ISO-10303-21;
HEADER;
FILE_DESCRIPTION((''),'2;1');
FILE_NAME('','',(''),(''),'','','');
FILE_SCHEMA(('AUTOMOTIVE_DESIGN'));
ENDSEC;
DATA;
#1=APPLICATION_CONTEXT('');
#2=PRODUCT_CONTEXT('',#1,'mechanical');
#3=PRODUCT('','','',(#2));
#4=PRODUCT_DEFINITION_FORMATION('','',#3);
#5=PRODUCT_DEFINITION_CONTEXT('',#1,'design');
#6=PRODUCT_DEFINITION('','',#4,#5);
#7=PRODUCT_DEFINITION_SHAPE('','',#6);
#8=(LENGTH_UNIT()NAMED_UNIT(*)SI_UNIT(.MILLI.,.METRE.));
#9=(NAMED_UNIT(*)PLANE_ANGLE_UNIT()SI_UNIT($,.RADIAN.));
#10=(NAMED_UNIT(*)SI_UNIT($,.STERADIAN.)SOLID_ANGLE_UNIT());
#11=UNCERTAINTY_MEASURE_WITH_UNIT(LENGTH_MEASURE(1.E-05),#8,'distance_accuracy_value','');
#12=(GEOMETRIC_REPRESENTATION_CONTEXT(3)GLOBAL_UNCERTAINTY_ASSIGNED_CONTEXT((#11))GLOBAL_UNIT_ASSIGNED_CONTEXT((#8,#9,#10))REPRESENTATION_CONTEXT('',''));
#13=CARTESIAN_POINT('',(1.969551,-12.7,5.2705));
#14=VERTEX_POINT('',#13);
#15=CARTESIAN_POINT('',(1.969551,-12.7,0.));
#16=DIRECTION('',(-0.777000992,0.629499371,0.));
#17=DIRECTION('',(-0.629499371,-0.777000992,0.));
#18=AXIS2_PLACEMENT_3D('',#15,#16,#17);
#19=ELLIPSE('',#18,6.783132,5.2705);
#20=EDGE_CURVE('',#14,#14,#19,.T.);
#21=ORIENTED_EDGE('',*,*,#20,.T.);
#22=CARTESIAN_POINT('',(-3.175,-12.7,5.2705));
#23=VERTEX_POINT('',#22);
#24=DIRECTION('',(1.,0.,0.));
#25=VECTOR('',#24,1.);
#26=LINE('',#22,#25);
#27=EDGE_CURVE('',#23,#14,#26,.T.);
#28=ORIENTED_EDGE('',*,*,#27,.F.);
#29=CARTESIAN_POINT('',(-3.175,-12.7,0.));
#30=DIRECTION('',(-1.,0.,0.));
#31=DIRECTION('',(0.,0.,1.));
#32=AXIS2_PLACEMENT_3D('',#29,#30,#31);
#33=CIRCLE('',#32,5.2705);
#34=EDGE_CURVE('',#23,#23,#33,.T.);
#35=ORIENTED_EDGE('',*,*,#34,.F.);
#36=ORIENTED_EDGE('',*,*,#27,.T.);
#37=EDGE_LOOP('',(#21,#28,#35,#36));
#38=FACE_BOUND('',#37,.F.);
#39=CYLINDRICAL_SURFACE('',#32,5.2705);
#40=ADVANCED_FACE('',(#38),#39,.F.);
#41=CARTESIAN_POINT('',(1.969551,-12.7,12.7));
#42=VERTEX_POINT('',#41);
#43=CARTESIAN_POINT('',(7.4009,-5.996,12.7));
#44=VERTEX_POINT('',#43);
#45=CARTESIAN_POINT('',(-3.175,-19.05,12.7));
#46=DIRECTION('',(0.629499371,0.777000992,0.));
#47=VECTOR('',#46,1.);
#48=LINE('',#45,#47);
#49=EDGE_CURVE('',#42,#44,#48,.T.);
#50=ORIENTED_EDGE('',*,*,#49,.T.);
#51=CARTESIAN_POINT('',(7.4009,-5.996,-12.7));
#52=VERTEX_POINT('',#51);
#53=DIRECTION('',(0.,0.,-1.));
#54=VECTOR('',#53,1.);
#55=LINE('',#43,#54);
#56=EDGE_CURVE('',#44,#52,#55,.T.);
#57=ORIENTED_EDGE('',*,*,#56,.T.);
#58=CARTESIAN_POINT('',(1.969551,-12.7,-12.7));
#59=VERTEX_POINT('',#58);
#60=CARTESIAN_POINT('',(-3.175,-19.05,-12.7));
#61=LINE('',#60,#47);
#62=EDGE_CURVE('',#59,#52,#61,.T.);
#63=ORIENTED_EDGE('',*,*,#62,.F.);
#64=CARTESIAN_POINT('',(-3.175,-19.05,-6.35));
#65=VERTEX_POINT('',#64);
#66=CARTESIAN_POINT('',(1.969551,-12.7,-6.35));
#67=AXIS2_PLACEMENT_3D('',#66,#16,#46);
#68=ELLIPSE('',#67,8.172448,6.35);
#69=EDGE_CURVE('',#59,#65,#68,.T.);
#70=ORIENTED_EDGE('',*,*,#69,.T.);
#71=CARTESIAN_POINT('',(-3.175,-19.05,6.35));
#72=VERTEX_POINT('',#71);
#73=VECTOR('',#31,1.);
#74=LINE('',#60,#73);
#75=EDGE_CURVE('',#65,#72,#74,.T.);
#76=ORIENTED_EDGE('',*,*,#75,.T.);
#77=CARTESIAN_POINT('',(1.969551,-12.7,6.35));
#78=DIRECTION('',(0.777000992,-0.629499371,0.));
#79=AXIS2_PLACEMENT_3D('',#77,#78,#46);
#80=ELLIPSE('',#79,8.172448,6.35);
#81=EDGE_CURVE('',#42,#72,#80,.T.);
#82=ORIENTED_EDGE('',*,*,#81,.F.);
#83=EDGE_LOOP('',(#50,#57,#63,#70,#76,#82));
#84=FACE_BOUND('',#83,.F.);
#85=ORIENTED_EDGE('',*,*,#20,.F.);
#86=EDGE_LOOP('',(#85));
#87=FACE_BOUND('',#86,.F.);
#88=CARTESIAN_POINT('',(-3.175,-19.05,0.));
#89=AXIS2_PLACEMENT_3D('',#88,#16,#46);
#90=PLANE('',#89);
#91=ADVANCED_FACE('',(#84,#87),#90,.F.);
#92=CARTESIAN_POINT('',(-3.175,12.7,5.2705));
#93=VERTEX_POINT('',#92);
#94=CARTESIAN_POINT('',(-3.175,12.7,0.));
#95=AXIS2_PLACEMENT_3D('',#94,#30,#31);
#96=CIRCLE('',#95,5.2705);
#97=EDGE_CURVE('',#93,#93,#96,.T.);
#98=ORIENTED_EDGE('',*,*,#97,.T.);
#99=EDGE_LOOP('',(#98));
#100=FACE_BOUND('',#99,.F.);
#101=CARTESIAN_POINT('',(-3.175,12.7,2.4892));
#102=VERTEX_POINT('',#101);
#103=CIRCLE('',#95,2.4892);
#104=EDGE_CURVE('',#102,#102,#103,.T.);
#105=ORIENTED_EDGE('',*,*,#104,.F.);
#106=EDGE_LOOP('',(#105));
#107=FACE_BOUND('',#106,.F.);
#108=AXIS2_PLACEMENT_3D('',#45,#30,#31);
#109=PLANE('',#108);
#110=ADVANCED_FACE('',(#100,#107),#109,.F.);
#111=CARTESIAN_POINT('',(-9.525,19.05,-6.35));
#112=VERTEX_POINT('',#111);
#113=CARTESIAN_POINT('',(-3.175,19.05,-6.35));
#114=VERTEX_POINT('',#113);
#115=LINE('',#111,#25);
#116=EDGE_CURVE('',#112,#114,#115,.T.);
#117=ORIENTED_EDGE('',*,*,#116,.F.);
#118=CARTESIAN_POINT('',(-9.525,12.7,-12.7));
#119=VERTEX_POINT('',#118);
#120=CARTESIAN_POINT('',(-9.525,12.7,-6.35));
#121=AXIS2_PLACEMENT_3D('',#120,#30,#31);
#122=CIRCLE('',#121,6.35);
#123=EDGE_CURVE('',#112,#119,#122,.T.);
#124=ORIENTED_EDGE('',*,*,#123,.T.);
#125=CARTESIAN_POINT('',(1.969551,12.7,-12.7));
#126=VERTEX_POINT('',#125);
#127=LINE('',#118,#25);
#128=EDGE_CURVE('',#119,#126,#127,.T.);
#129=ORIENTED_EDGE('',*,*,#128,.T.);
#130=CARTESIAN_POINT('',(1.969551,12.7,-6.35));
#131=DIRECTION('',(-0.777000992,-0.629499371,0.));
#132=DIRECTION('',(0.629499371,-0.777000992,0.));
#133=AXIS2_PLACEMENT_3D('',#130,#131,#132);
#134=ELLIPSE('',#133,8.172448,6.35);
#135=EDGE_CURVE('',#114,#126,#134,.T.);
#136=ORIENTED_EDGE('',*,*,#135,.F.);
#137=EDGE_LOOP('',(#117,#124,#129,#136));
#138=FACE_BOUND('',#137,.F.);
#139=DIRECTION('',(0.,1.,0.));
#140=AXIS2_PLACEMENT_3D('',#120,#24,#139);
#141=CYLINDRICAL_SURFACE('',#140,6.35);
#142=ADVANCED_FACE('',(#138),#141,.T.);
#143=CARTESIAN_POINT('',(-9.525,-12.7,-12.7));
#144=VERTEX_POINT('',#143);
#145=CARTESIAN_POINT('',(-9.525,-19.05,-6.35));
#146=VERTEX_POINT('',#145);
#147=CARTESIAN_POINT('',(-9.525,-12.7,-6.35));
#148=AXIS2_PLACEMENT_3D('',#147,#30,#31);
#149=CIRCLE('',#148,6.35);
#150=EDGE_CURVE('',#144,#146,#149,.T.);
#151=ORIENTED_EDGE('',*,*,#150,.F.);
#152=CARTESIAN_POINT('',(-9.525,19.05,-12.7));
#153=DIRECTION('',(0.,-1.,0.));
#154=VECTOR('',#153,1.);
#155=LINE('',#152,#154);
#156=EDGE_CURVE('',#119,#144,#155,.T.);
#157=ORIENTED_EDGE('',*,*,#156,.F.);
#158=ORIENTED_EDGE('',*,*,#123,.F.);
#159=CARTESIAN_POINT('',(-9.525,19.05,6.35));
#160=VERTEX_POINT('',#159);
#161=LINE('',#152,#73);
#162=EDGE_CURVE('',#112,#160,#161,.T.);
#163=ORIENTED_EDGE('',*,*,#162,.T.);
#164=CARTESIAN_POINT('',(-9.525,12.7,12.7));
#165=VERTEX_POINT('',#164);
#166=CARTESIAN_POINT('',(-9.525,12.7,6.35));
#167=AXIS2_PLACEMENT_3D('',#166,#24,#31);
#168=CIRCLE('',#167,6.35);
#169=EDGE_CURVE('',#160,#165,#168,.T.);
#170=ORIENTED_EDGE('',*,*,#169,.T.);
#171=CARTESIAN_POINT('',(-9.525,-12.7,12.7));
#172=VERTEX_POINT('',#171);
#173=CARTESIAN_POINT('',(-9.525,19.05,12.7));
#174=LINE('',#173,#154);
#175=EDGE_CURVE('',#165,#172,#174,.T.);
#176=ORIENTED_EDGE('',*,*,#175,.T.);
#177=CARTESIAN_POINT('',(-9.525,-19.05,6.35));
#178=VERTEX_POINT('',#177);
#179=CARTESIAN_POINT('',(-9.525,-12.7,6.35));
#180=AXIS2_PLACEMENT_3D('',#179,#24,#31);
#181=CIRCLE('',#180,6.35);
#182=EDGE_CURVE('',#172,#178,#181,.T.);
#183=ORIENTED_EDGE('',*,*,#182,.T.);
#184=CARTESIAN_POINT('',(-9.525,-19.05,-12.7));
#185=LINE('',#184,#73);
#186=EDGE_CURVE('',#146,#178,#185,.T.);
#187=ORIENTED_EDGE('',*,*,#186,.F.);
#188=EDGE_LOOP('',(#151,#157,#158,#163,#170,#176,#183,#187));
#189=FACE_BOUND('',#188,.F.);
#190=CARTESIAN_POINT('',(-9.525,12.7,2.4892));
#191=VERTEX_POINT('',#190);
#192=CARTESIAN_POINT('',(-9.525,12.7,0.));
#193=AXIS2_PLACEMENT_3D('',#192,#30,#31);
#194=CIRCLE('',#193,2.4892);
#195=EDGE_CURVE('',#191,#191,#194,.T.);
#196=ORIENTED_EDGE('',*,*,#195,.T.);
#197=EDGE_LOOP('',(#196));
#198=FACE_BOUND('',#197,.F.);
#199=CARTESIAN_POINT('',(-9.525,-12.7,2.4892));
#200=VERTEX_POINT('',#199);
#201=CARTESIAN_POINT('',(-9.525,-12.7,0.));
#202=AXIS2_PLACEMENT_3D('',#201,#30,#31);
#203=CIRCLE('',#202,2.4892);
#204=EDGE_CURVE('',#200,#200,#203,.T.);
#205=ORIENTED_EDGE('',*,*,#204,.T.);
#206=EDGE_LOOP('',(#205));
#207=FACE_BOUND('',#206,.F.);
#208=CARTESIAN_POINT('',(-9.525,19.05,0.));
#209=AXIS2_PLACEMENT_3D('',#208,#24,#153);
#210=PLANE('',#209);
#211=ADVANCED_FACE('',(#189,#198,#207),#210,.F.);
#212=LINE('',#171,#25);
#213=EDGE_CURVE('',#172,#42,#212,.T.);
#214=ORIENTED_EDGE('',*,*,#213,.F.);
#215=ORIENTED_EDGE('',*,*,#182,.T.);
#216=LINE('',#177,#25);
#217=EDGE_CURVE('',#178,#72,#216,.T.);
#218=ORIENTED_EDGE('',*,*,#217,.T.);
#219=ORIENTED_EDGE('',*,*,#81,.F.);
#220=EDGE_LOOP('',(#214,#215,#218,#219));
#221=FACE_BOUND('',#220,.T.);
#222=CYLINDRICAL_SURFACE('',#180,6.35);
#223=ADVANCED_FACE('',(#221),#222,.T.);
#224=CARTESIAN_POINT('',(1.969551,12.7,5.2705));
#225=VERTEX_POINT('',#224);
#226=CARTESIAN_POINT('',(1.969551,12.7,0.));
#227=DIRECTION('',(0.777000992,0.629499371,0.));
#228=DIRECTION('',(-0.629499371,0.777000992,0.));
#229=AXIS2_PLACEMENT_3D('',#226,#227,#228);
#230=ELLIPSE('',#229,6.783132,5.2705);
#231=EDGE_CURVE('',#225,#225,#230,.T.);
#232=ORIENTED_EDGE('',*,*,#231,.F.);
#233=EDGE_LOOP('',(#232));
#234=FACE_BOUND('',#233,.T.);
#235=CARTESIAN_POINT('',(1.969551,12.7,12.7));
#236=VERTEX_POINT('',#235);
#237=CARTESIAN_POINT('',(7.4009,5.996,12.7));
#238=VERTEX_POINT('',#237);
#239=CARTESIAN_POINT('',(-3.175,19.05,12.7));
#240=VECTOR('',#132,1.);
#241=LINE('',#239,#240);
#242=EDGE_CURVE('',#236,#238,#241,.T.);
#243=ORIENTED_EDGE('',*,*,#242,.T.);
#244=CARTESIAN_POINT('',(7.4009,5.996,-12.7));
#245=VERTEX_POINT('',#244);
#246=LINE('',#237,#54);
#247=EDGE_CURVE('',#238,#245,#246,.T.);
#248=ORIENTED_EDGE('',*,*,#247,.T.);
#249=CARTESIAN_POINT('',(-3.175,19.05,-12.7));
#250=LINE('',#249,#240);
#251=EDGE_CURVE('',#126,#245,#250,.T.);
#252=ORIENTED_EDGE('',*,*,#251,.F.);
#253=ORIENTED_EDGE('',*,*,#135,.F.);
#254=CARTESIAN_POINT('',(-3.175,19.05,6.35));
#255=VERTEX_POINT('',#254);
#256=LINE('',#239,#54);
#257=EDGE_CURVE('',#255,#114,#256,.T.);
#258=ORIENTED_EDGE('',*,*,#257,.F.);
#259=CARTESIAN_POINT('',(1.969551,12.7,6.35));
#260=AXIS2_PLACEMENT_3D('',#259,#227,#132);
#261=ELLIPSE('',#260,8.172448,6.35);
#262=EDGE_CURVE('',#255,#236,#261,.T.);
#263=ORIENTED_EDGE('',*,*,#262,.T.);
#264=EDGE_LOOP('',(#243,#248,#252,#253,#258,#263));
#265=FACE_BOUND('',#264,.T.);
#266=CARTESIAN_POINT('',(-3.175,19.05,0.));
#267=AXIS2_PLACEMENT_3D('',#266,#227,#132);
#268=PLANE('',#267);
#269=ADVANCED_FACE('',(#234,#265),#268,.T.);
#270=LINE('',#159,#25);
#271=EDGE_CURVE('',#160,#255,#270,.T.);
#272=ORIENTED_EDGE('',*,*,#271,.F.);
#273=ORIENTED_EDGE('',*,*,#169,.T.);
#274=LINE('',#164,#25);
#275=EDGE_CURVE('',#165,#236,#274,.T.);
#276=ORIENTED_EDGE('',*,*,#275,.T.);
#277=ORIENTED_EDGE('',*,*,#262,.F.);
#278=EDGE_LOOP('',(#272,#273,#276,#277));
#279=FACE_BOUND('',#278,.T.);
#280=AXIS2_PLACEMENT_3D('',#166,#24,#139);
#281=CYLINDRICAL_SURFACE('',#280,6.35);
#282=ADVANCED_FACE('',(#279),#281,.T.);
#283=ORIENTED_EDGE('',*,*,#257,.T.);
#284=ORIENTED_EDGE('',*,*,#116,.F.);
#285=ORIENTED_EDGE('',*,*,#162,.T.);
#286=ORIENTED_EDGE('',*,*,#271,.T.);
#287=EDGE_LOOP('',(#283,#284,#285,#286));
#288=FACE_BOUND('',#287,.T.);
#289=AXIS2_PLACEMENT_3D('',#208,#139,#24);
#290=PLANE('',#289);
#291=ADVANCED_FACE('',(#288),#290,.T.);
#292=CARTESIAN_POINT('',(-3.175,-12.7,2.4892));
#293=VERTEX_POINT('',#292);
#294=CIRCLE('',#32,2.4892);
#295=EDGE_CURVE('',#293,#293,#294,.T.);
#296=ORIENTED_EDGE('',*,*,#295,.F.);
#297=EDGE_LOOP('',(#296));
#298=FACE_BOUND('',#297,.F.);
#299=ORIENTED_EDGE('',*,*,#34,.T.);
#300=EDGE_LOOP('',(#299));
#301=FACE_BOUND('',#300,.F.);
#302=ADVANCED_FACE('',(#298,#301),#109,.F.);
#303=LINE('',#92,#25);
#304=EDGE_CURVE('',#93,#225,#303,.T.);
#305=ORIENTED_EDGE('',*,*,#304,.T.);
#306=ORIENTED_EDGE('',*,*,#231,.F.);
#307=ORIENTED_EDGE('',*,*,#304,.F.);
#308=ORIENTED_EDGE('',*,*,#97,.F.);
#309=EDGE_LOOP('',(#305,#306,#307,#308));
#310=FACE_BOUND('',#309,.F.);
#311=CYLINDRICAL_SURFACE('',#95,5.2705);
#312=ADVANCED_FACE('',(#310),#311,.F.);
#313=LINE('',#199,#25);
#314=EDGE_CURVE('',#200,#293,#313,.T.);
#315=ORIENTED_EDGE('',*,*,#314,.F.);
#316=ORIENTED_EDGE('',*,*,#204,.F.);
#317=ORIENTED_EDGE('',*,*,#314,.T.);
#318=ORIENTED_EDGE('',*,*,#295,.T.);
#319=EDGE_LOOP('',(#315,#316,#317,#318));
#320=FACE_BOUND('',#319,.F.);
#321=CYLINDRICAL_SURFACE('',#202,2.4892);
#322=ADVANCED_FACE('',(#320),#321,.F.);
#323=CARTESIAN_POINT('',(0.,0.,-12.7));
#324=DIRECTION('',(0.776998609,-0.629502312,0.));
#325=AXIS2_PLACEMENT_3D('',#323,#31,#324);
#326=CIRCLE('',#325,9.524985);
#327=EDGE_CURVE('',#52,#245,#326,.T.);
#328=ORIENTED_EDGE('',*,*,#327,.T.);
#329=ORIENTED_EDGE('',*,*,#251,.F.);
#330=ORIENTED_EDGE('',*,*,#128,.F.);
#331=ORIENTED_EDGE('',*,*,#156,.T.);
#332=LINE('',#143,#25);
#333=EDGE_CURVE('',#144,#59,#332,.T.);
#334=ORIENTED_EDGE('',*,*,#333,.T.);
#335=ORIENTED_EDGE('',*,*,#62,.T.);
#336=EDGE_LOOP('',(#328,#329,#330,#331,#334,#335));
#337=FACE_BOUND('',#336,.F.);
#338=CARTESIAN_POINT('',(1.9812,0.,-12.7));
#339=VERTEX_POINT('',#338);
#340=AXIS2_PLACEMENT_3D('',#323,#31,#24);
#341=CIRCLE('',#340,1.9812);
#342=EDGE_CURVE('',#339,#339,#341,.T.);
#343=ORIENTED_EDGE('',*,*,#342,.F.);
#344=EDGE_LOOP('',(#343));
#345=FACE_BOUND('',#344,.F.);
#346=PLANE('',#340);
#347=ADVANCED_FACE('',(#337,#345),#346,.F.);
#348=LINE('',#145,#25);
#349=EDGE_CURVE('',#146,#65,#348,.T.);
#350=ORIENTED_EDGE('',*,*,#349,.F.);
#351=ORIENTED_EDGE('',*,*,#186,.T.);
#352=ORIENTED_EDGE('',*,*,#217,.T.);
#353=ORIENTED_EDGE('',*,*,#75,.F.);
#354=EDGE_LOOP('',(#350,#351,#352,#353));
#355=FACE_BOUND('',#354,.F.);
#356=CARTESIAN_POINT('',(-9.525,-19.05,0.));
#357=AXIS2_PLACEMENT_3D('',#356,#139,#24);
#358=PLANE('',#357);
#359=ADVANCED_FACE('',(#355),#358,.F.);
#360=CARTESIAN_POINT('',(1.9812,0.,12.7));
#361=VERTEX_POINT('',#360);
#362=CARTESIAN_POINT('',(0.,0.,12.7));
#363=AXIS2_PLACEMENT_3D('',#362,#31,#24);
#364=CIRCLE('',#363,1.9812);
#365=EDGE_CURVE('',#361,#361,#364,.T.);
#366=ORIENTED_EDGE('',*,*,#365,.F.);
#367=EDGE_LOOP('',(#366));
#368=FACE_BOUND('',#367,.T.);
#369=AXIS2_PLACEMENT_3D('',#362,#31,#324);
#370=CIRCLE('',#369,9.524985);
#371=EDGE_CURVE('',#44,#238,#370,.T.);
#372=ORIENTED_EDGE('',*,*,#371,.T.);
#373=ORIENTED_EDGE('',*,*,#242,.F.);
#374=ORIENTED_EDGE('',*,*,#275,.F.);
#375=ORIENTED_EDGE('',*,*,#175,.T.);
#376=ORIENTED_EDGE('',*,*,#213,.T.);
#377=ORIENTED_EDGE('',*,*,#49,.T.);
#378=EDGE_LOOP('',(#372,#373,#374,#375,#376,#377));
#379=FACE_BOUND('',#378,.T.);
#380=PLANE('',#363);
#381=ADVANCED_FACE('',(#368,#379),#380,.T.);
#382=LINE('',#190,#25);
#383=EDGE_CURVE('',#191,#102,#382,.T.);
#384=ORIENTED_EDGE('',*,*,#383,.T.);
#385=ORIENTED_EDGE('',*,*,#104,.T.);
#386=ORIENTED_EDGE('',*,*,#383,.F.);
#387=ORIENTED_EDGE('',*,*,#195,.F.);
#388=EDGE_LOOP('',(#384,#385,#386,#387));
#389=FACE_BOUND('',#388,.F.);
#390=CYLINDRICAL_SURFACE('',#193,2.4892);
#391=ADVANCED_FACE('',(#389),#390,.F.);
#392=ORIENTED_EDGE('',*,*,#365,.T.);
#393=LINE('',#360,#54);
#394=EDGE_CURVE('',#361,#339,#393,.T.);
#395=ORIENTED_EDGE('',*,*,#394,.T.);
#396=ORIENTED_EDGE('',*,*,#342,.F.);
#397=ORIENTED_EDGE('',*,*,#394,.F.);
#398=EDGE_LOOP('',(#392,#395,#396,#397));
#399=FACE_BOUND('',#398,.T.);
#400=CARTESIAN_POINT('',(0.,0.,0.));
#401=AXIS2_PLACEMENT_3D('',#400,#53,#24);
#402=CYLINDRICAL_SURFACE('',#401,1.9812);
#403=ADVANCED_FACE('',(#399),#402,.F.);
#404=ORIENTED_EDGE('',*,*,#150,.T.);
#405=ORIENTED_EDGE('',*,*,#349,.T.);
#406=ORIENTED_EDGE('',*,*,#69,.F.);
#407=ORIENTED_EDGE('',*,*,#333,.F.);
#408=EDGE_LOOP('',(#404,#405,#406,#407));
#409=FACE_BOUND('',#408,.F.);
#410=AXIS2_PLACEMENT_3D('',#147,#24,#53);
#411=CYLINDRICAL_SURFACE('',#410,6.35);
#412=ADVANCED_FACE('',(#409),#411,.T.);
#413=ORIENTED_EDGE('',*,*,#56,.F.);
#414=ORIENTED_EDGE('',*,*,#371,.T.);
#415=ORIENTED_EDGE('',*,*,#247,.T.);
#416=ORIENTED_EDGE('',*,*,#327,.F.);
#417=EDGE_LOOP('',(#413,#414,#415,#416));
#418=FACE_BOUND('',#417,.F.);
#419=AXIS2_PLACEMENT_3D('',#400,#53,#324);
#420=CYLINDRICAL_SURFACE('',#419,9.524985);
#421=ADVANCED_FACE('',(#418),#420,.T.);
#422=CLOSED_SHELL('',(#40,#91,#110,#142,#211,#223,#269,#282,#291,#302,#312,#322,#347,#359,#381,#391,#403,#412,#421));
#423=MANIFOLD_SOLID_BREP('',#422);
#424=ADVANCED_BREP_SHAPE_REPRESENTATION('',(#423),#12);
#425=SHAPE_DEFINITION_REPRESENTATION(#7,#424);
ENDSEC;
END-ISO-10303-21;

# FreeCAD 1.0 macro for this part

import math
import FreeCAD as App
import Part
import Sketcher
from FreeCAD import Vector
Q = App.Units.Quantity


def edges_at(feature, points):
    """Names of the edges that pass closest to the given points."""
    edges = feature.Shape.Edges
    near = lambda p: min(range(len(edges)), key=lambda i: edges[i].distToShape(Part.Vertex(*p))[0])
    return sorted({f"Edge{near(p) + 1}" for p in points})

doc = App.newDocument("Part")
params = doc.addObject("Spreadsheet::Sheet", "Params")
for row, (alias, value) in enumerate([
    ("sketch1_diameter", "0.156 in"),
    ("sketch1_height", "1.5 in"),
    ("sketch1_radius", "0.375 in"),
    ("sketch1_width", "0.25 in"),
    ("pad1_length", "1 in"),
    ("sketch2_diameter", "0.196 in"),
    ("sketch3_diameter", "0.415 in"),
    ("sketch3_diameter2", "0.196 in"),
    ("fillet_radius", "0.25 in"),
], start=1):
    params.set(f"A{row}", alias)
    params.set(f"B{row}", "=" + value)
    params.setAlias(f"B{row}", alias)

body = doc.addObject("PartDesign::Body", "Body")

sketch1 = body.newObject("Sketcher::SketchObject", "Sketch")
sketch1.AttachmentSupport = (doc.getObject("XY_Plane"), [""])
sketch1.MapMode = "FlatFace"
sketch1.addGeometry(Part.LineSegment(Vector(-3.2, 19.1, 0), Vector(-9.5, 19.1, 0)), False)
sketch1.addGeometry(Part.LineSegment(Vector(-9.5, 19.1, 0), Vector(-9.5, -19.1, 0)), False)
sketch1.addGeometry(Part.LineSegment(Vector(-9.5, -19.1, 0), Vector(-3.2, -19.1, 0)), False)
sketch1.addGeometry(Part.LineSegment(Vector(-3.2, -19.1, 0), Vector(7.4, -6, 0)), False)
sketch1.addGeometry(Part.ArcOfCircle(Part.Circle(Vector(0, 0, 0), Vector(0, 0, 1), 9.5), math.radians(-39), math.radians(39)), False)
sketch1.addGeometry(Part.LineSegment(Vector(7.4, 6, 0), Vector(-3.2, 19.1, 0)), False)
sketch1.addGeometry(Part.Circle(Vector(0, 0, 0), Vector(0, 0, 1), 2), False)
sketch1.addConstraint(Sketcher.Constraint("Coincident", 0, 2, 1, 1))
sketch1.addConstraint(Sketcher.Constraint("Coincident", 1, 2, 2, 1))
sketch1.addConstraint(Sketcher.Constraint("Coincident", 2, 2, 3, 1))
sketch1.addConstraint(Sketcher.Constraint("Tangent", 3, 2, 4, 1))
sketch1.addConstraint(Sketcher.Constraint("Tangent", 4, 2, 5, 1))
sketch1.addConstraint(Sketcher.Constraint("Coincident", 5, 2, 0, 1))
sketch1.addConstraint(Sketcher.Constraint("Horizontal", 0))
sketch1.addConstraint(Sketcher.Constraint("Vertical", 1))
sketch1.addConstraint(Sketcher.Constraint("Horizontal", 2))
sketch1.addConstraint(Sketcher.Constraint("Coincident", 4, 3, -1, 1))
sketch1.addConstraint(Sketcher.Constraint("Coincident", 6, 3, -1, 1))
sketch1.addConstraint(Sketcher.Constraint("Symmetric", 2, 2, 5, 2, -1))
sketch1.addConstraint(Sketcher.Constraint("Diameter", 6, Q("0.156 in")))
sketch1.addConstraint(Sketcher.Constraint("DistanceY", 1, 2, 1, 1, Q("1.5 in")))
sketch1.addConstraint(Sketcher.Constraint("Radius", 4, Q("0.375 in")))
sketch1.addConstraint(Sketcher.Constraint("DistanceX", 0, 2, 0, 1, Q("0.25 in")))
sketch1.addConstraint(Sketcher.Constraint("DistanceX", 0, 2, -1, 1, Q("0.375 in")))
sketch1.setExpression("Constraints[12]", "Params.sketch1_diameter")
sketch1.setExpression("Constraints[13]", "Params.sketch1_height")
sketch1.setExpression("Constraints[14]", "Params.sketch1_radius")
sketch1.setExpression("Constraints[15]", "Params.sketch1_width")
pad1 = body.newObject("PartDesign::Pad", "Pad")
pad1.Profile = sketch1
pad1.setExpression("Length", "Params.pad1_length")
pad1.Midplane = True

sketch2 = body.newObject("Sketcher::SketchObject", "Sketch001")
sketch2.AttachmentSupport = (doc.getObject("YZ_Plane"), [""])
sketch2.MapMode = "FlatFace"
sketch2.AttachmentOffset = App.Placement(Vector(0, 0, -0.375 * 25.4), App.Rotation())
sketch2.addGeometry(Part.Circle(Vector(12.7, 0, 0), Vector(0, 0, 1), 2.5), False)
sketch2.addGeometry(Part.Circle(Vector(-12.7, 0, 0), Vector(0, 0, 1), 2.5), False)
sketch2.addConstraint(Sketcher.Constraint("Equal", 0, 1))
sketch2.addConstraint(Sketcher.Constraint("Symmetric", 0, 3, 1, 3, -1, 1))
sketch2.addConstraint(Sketcher.Constraint("PointOnObject", 0, 3, -1))
sketch2.addConstraint(Sketcher.Constraint("Diameter", 0, Q("0.196 in")))
sketch2.addConstraint(Sketcher.Constraint("DistanceX", -1, 1, 0, 3, Q("0.5 in")))
sketch2.setExpression("Constraints[3]", "Params.sketch2_diameter")
pocket1 = body.newObject("PartDesign::Pocket", "Pocket")
pocket1.Profile = sketch2
pocket1.Type = "ThroughAll"
pocket1.Reversed = True

sketch3 = body.newObject("Sketcher::SketchObject", "Sketch002")
sketch3.AttachmentSupport = (doc.getObject("YZ_Plane"), [""])
sketch3.MapMode = "FlatFace"
sketch3.AttachmentOffset = App.Placement(Vector(0, 0, -0.125 * 25.4), App.Rotation())
sketch3.addGeometry(Part.Circle(Vector(12.7, 0, 0), Vector(0, 0, 1), 5.3), False)
sketch3.addGeometry(Part.Circle(Vector(12.7, 0, 0), Vector(0, 0, 1), 2.5), False)
sketch3.addGeometry(Part.Circle(Vector(-12.7, 0, 0), Vector(0, 0, 1), 5.3), False)
sketch3.addGeometry(Part.Circle(Vector(-12.7, 0, 0), Vector(0, 0, 1), 2.5), False)
sketch3.addConstraint(Sketcher.Constraint("Coincident", 1, 3, 0, 3))
sketch3.addConstraint(Sketcher.Constraint("Coincident", 3, 3, 2, 3))
sketch3.addConstraint(Sketcher.Constraint("Equal", 0, 2))
sketch3.addConstraint(Sketcher.Constraint("Equal", 1, 3))
sketch3.addConstraint(Sketcher.Constraint("Symmetric", 0, 3, 2, 3, -1, 1))
sketch3.addConstraint(Sketcher.Constraint("PointOnObject", 0, 3, -1))
sketch3.addConstraint(Sketcher.Constraint("Diameter", 0, Q("0.415 in")))
sketch3.addConstraint(Sketcher.Constraint("Diameter", 1, Q("0.196 in")))
sketch3.addConstraint(Sketcher.Constraint("DistanceX", 2, 3, 0, 3, Q("1 in")))
sketch3.setExpression("Constraints[6]", "Params.sketch3_diameter")
sketch3.setExpression("Constraints[7]", "Params.sketch3_diameter2")
pocket2 = body.newObject("PartDesign::Pocket", "Pocket001")
pocket2.Profile = sketch3
pocket2.Type = "ThroughAll"
pocket2.Reversed = True
doc.recompute()

fillet = body.newObject("PartDesign::Fillet", "Fillet")
fillet.Base = (pocket2, edges_at(pocket2, [
    (-6.35, 19.05, 12.7),
    (-6.35, 19.05, -12.7),
    (-6.35, -19.05, 12.7),
    (-6.35, -19.05, -12.7),
]))
fillet.setExpression("Radius", "Params.fillet_radius")

doc.recompute()
